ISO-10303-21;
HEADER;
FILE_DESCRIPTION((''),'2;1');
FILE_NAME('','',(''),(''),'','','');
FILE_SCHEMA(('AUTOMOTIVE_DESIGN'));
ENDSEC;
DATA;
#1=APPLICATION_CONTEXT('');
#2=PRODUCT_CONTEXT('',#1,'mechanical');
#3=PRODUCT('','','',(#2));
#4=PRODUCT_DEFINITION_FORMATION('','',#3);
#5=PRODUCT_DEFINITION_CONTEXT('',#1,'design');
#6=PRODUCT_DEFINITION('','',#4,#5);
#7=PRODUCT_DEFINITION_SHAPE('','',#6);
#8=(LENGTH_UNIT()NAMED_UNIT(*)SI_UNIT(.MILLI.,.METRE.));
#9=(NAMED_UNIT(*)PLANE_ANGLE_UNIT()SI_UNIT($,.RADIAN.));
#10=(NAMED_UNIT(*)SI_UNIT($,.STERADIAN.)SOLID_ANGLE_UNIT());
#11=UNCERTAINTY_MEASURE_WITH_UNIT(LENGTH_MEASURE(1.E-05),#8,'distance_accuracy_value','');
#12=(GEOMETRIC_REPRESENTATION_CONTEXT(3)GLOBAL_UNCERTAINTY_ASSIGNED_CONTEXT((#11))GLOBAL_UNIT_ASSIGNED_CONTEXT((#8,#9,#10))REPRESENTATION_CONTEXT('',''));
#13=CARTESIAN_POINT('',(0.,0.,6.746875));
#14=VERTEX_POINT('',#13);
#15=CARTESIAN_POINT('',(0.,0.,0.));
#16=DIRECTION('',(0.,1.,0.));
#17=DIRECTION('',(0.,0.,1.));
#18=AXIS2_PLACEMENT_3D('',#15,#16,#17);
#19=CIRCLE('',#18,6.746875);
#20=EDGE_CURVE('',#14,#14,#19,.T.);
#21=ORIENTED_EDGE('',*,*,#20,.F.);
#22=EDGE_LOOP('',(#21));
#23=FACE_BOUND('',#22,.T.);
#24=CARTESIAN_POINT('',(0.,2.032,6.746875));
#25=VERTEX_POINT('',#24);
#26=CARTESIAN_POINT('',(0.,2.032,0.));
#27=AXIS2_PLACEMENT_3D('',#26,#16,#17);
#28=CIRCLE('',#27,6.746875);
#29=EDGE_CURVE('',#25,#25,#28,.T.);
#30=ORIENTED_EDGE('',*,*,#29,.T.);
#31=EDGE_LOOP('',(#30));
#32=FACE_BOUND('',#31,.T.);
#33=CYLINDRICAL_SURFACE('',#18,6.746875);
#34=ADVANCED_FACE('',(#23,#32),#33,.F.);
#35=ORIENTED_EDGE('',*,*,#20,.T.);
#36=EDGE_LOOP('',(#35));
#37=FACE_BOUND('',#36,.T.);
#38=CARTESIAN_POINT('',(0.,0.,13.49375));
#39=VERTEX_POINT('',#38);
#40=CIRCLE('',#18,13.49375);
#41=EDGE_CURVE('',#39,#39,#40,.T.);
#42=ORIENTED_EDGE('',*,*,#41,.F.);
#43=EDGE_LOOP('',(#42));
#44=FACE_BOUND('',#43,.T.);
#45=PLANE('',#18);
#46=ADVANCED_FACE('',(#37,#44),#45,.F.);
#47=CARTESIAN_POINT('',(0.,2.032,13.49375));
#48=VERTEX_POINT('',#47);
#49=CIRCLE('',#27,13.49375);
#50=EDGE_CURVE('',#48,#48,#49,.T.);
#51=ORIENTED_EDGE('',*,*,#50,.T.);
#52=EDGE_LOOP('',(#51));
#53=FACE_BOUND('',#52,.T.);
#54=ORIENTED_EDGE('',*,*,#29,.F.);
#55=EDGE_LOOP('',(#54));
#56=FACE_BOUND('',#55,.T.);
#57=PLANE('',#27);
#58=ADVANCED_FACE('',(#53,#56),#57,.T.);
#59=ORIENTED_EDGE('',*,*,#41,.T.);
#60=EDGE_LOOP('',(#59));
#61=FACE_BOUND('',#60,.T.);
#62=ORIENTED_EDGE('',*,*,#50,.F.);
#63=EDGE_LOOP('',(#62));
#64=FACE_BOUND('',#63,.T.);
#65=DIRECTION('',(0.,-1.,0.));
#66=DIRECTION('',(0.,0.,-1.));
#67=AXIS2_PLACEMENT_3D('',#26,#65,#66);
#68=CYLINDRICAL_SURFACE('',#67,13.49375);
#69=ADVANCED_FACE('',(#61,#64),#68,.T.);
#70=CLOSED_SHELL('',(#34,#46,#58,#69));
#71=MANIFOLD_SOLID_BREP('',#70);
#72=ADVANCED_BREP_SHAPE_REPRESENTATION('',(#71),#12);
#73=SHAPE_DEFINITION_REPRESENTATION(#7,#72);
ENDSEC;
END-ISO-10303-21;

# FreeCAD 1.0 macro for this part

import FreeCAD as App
import Part
import Sketcher
from FreeCAD import Vector
Q = App.Units.Quantity

doc = App.newDocument("Part")
body = doc.addObject("PartDesign::Body", "Body")

# Sketch on XZ plane
sketch1 = body.newObject("Sketcher::SketchObject", "Sketch")
sketch1.AttachmentSupport = (doc.getObject("XZ_Plane"), [""])
sketch1.MapMode = "FlatFace"
sketch1.addGeometry(Part.Circle(Vector(0, 0, 0), Vector(0, 0, 1), 13), False)
sketch1.addConstraint([
    Sketcher.Constraint("Coincident", 0, 3, -1, 1),
    Sketcher.Constraint("Diameter", 0, Q("1.0625 in")),
])
pad1 = body.newObject("PartDesign::Pad", "Pad")
pad1.Profile = sketch1
pad1.Length = Q("0.08 in")
pad1.Reversed = True

# Sketch on XZ plane
sketch2 = body.newObject("Sketcher::SketchObject", "Sketch001")
sketch2.AttachmentSupport = (doc.getObject("XZ_Plane"), [""])
sketch2.MapMode = "FlatFace"
sketch2.AttachmentOffset = App.Placement(Vector(0, 0, -0.08 * 25.4), App.Rotation())
sketch2.addGeometry(Part.Circle(Vector(0, 0, 0), Vector(0, 0, 1), 7), False)
sketch2.addConstraint([
    Sketcher.Constraint("Coincident", 0, 3, -1, 1),
    Sketcher.Constraint("Diameter", 0, Q("0.53125 in")),
])
pocket1 = body.newObject("PartDesign::Pocket", "Pocket")
pocket1.Profile = sketch2
pocket1.Type = "ThroughAll"
pocket1.Reversed = True

doc.recompute()
